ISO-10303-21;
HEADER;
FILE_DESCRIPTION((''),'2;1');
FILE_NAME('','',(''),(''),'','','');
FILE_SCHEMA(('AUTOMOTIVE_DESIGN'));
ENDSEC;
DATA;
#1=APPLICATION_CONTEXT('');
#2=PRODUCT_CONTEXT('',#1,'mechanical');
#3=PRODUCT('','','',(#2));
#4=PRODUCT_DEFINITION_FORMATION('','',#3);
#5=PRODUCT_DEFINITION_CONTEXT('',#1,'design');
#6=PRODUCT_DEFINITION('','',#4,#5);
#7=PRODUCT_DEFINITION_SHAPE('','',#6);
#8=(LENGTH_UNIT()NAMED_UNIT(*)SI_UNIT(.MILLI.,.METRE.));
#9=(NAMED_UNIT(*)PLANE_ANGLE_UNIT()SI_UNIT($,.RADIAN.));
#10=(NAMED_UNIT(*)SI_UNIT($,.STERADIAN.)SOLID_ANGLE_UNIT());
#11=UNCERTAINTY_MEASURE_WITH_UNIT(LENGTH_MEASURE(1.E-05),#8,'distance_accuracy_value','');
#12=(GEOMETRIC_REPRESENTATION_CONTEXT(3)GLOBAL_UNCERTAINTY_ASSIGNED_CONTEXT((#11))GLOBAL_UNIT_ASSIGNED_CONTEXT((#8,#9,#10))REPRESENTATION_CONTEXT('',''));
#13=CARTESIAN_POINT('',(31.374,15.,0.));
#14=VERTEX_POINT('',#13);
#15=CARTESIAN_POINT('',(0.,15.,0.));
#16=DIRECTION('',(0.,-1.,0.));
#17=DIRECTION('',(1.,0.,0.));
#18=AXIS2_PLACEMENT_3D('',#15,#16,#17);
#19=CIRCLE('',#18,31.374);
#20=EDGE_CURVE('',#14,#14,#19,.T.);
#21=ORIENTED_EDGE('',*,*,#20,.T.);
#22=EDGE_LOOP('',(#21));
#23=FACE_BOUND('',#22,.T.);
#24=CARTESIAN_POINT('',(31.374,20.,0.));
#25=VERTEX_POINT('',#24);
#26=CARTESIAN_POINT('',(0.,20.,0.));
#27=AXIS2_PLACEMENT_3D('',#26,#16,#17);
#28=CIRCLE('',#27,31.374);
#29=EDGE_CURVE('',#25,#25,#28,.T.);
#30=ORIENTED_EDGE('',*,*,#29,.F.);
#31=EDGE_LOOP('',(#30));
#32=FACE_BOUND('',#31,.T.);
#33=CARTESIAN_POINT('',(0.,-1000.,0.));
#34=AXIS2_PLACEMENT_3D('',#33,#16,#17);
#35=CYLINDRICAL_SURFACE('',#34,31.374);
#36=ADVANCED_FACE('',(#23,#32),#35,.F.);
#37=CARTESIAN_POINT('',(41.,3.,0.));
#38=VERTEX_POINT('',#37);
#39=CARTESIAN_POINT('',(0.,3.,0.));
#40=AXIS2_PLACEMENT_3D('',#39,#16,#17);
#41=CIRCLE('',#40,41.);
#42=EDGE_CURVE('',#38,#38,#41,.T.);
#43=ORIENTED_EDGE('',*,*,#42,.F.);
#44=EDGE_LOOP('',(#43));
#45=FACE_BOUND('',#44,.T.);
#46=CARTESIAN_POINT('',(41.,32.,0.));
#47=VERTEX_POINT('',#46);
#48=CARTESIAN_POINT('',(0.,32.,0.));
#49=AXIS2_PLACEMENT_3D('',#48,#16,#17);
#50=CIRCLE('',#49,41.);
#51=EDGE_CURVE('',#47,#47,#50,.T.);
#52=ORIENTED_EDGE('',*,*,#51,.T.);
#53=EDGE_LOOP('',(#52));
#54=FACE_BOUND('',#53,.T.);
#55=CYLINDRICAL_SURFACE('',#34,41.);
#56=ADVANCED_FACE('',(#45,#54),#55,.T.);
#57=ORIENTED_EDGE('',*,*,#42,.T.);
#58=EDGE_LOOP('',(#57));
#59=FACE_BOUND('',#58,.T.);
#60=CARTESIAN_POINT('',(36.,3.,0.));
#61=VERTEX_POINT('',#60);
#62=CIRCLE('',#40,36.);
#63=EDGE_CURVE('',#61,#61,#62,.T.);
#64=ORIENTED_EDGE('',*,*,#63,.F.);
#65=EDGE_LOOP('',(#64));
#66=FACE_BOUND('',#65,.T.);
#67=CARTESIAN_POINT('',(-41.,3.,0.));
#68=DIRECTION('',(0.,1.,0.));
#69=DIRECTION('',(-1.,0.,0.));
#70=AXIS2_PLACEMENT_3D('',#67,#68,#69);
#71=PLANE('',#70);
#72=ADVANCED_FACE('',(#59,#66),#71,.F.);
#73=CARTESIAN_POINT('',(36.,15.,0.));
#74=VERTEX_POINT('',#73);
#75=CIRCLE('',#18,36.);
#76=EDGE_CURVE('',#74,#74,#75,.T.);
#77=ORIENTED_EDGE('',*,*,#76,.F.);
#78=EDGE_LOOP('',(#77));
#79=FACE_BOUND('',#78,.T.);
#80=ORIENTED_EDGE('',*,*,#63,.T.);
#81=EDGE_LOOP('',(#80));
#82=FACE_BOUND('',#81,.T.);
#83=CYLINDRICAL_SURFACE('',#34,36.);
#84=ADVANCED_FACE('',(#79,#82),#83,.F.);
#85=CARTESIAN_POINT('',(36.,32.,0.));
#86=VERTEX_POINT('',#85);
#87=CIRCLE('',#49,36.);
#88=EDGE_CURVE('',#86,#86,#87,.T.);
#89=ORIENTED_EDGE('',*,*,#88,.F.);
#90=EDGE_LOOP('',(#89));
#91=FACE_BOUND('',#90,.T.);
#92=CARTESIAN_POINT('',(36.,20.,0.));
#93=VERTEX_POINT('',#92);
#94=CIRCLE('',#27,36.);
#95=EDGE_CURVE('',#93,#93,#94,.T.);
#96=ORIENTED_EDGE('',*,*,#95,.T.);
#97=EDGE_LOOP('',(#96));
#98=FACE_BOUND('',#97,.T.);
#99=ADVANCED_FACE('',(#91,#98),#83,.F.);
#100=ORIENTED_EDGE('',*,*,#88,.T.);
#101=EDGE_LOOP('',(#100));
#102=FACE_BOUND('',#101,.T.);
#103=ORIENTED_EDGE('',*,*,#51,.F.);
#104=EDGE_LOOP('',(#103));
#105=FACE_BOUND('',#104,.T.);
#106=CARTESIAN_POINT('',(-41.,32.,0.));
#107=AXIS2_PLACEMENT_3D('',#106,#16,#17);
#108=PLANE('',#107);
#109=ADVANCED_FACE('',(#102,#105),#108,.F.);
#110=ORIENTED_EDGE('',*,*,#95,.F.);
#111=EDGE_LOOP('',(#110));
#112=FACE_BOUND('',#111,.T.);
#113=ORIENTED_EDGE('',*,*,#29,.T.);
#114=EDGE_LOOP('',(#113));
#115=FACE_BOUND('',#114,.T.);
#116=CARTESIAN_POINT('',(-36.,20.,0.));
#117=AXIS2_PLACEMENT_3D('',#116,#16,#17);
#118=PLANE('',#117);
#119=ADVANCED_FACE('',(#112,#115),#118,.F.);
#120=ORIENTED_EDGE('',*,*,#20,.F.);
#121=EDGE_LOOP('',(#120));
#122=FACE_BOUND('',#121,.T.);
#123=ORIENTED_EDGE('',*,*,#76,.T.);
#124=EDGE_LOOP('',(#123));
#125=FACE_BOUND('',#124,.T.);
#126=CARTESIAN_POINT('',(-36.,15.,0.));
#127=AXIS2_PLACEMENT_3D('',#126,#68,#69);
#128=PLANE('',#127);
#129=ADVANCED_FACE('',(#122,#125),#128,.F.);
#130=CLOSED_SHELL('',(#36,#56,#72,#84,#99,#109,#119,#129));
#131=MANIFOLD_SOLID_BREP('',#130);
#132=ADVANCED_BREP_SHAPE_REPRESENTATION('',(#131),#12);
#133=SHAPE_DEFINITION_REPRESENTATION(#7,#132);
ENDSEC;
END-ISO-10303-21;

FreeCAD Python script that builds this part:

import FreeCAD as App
import Part
import Sketcher
Q = App.Units.Quantity

doc = App.newDocument("Part")
params = doc.addObject("Spreadsheet::Sheet", "Params")
for row, (alias, value) in enumerate([
    ("sketch1_width", "5 mm"),
    ("sketch1_height", "12 mm"),
    ("revolution_angle", "360 deg"),
], start=1):
    params.set(f"A{row}", alias)
    params.set(f"B{row}", "=" + value)
    params.setAlias(f"B{row}", alias)

body = doc.addObject("PartDesign::Body", "Body")

sketch1 = body.newObject("Sketcher::SketchObject", "Sketch")
sketch1.AttachmentSupport = (doc.getObject("XY_Plane"), [""])
sketch1.MapMode = "FlatFace"
sketch1.addGeometry(Part.LineSegment(App.Vector(-36, 3, 0), App.Vector(-36, 15, 0)), False)
sketch1.addGeometry(Part.LineSegment(App.Vector(-36, 15, 0), App.Vector(-31.4, 15, 0)), False)
sketch1.addGeometry(Part.LineSegment(App.Vector(-31.4, 15, 0), App.Vector(-31.4, 20, 0)), False)
sketch1.addGeometry(Part.LineSegment(App.Vector(-31.4, 20, 0), App.Vector(-36, 20, 0)), False)
sketch1.addGeometry(Part.LineSegment(App.Vector(-36, 20, 0), App.Vector(-36, 32, 0)), False)
sketch1.addGeometry(Part.LineSegment(App.Vector(-36, 32, 0), App.Vector(-41, 32, 0)), False)
sketch1.addGeometry(Part.LineSegment(App.Vector(-41, 32, 0), App.Vector(-41, 3, 0)), False)
sketch1.addGeometry(Part.LineSegment(App.Vector(-41, 3, 0), App.Vector(-36, 3, 0)), False)
sketch1.addConstraint(Sketcher.Constraint("Coincident", 0, 2, 1, 1))
sketch1.addConstraint(Sketcher.Constraint("Coincident", 1, 2, 2, 1))
sketch1.addConstraint(Sketcher.Constraint("Coincident", 2, 2, 3, 1))
sketch1.addConstraint(Sketcher.Constraint("Coincident", 3, 2, 4, 1))
sketch1.addConstraint(Sketcher.Constraint("Coincident", 4, 2, 5, 1))
sketch1.addConstraint(Sketcher.Constraint("Coincident", 5, 2, 6, 1))
sketch1.addConstraint(Sketcher.Constraint("Coincident", 6, 2, 7, 1))
sketch1.addConstraint(Sketcher.Constraint("Coincident", 7, 2, 0, 1))
sketch1.addConstraint(Sketcher.Constraint("Vertical", 0))
sketch1.addConstraint(Sketcher.Constraint("Horizontal", 1))
sketch1.addConstraint(Sketcher.Constraint("Vertical", 2))
sketch1.addConstraint(Sketcher.Constraint("Horizontal", 3))
sketch1.addConstraint(Sketcher.Constraint("Vertical", 4))
sketch1.addConstraint(Sketcher.Constraint("Horizontal", 5))
sketch1.addConstraint(Sketcher.Constraint("Vertical", 6))
sketch1.addConstraint(Sketcher.Constraint("Horizontal", 7))
sketch1.addConstraint(Sketcher.Constraint("Vertical", 0, 2, 3, 2))
sketch1.addConstraint(Sketcher.Constraint("Equal", 7, 2))
sketch1.addConstraint(Sketcher.Constraint("Equal", 0, 4))
sketch1.addConstraint(Sketcher.Constraint("DistanceX", 5, 2, 5, 1, Q("5 mm")))
sketch1.addConstraint(Sketcher.Constraint("DistanceY", 0, 1, 0, 2, Q("12 mm")))
sketch1.addConstraint(Sketcher.Constraint("DistanceX", 0, 2, -1, 1, Q("36 mm")))
sketch1.addConstraint(Sketcher.Constraint("DistanceY", -1, 1, 0, 2, Q("15 mm")))
sketch1.addConstraint(Sketcher.Constraint("DistanceX", 1, 1, 1, 2, Q("4.626 mm")))
sketch1.setExpression("Constraints[19]", "Params.sketch1_width")
sketch1.setExpression("Constraints[20]", "Params.sketch1_height")
revolution = body.newObject("PartDesign::Revolution", "Revolution")
revolution.Profile = sketch1
revolution.ReferenceAxis = (sketch1, ["V_Axis"])
revolution.setExpression("Angle", "Params.revolution_angle")

doc.recompute()
